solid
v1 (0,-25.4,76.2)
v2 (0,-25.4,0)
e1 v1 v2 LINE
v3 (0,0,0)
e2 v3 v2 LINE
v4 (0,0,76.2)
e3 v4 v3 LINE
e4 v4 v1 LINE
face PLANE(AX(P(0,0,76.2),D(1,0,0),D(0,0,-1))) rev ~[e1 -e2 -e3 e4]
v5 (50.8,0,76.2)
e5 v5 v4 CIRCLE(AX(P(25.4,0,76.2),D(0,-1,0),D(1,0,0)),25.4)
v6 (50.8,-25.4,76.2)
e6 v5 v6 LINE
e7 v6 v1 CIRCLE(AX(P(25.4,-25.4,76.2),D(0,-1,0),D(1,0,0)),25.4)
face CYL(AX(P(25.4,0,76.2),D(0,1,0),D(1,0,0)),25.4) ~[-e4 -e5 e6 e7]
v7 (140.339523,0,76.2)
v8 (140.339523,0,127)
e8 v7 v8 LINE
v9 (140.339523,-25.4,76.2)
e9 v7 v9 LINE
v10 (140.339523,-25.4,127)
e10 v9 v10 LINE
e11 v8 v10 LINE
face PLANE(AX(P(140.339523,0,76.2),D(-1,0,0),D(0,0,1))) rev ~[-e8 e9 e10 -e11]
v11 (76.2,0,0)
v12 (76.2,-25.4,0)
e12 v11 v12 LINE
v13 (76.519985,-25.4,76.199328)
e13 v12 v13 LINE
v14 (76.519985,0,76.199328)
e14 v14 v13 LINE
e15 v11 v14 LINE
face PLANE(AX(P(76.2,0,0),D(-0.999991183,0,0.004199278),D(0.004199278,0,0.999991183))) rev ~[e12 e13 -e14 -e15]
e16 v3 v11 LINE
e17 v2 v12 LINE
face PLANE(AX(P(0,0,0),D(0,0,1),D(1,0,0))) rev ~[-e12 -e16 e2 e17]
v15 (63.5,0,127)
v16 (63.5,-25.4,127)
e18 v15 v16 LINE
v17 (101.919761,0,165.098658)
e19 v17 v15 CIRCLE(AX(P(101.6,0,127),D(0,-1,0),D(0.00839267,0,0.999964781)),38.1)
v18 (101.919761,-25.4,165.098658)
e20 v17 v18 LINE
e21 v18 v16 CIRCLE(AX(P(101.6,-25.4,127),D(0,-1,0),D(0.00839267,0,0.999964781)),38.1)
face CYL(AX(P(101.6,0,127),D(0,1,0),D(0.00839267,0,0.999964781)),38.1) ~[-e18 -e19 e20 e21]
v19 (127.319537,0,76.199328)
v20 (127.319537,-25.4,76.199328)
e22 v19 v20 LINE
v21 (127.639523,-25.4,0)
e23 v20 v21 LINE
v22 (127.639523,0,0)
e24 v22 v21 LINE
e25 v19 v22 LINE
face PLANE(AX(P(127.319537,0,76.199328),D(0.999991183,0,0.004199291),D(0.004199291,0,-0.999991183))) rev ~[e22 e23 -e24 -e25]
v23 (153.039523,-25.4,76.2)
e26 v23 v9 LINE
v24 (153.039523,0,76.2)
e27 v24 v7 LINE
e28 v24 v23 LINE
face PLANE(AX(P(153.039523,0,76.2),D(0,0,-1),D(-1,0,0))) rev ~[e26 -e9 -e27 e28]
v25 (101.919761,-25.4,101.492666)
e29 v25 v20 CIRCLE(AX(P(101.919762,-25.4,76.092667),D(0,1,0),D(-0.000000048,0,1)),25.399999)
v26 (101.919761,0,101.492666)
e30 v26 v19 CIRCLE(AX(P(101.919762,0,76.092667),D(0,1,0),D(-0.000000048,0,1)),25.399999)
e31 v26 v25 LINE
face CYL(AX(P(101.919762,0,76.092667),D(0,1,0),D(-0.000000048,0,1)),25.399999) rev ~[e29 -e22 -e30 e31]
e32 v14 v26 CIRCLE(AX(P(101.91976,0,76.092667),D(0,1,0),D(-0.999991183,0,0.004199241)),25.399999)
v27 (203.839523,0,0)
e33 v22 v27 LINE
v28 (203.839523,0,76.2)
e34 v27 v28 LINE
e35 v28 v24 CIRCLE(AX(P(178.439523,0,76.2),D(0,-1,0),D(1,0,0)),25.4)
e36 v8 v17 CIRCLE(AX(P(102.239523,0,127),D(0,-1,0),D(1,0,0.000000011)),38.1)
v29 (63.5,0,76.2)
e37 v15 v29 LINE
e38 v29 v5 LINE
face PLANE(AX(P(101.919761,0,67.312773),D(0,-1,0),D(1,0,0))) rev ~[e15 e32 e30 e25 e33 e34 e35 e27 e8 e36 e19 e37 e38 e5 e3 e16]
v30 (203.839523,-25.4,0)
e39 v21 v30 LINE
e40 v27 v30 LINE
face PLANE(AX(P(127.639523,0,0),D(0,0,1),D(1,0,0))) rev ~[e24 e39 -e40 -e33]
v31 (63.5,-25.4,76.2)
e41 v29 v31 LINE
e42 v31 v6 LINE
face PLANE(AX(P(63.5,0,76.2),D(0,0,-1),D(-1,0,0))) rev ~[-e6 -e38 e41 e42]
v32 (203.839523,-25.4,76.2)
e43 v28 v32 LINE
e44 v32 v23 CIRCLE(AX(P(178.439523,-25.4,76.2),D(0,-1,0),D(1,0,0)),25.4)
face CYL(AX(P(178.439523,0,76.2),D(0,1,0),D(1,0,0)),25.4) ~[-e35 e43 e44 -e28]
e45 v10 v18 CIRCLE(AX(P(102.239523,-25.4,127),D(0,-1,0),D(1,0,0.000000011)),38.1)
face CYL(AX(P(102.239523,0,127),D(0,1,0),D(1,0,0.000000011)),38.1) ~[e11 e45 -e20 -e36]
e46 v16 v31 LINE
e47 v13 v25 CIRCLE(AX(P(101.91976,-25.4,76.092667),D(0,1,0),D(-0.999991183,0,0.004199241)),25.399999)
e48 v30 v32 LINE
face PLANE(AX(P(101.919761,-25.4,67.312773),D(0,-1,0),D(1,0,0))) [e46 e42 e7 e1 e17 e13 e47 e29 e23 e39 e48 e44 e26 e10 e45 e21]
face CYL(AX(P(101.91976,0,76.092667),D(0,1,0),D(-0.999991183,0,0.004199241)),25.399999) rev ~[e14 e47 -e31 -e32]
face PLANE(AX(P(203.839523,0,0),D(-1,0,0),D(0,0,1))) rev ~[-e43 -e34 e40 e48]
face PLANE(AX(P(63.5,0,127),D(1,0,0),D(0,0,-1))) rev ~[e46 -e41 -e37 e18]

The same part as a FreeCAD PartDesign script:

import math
import FreeCAD as App
import Part
import Sketcher

V = App.Vector
Q = App.Units.Quantity

doc = App.newDocument("Part")
params = doc.addObject("Spreadsheet::Sheet", "Params")
for row, (alias, value) in enumerate([
    ("sketch1_radius", "0.9999999 in"),
    ("sketch1_radius2", "1.5 in"),
    ("sketch1_width", "3 in"),
    ("sketch1_height", "2 in"),
    ("sketch1_length", "3 in"),
    ("pad1_length", "1 in"),
], start=1):
    params.set(f"A{row}", alias)
    params.set(f"B{row}", "=" + value)
    params.setAlias(f"B{row}", alias)

body = doc.addObject("PartDesign::Body", "Body")

# Sketch on XZ plane
sketch1 = doc.addObject("Sketcher::SketchObject", "Sketch")
body.addObject(sketch1)
sketch1.AttachmentSupport = (doc.XZ_Plane, [""])
sketch1.MapMode = "FlatFace"
sketch1.addGeometry([
    Part.LineSegment(V(0, 76.2, 0), V(0, 0, 0)),  # 0
    Part.LineSegment(V(0, 0, 0), V(76.2, 0, 0)),  # 1
    Part.LineSegment(V(76.2, 0, 0), V(76.519985, 76.199328, 0)),  # 2
    Part.ArcOfCircle(Part.Circle(V(101.91976, 76.092667, 0), V(0, 0, 1), 25.399999), math.radians(89.999997), math.radians(179.7594)),  # 3
    Part.ArcOfCircle(Part.Circle(V(101.919762, 76.092667, 0), V(0, 0, 1), 25.399999), math.radians(0.2406), math.radians(90.000003)),  # 4
    Part.LineSegment(V(127.319537, 76.199328, 0), V(127.639523, 0, 0)),  # 5
    Part.LineSegment(V(127.639523, 0, 0), V(203.839523, 0, 0)),  # 6
    Part.LineSegment(V(203.839523, 0, 0), V(203.839523, 76.2, 0)),  # 7
    Part.ArcOfCircle(Part.Circle(V(178.439523, 76.2, 0), V(0, 0, 1), 25.4), math.radians(0), math.radians(180)),  # 8
    Part.LineSegment(V(153.039523, 76.2, 0), V(140.339523, 76.2, 0)),  # 9
    Part.LineSegment(V(140.339523, 76.2, 0), V(140.339523, 127, 0)),  # 10
    Part.ArcOfCircle(Part.Circle(V(102.239523, 127, 0), V(0, 0, 1), 38.1), math.radians(0.000001), math.radians(90.480872)),  # 11
    Part.ArcOfCircle(Part.Circle(V(101.6, 127, 0), V(0, 0, 1), 38.1), math.radians(89.51913), math.radians(179.999999)),  # 12
    Part.LineSegment(V(63.5, 127, 0), V(63.5, 76.2, 0)),  # 13
    Part.LineSegment(V(63.5, 76.2, 0), V(50.8, 76.2, 0)),  # 14
    Part.ArcOfCircle(Part.Circle(V(25.4, 76.2, 0), V(0, 0, 1), 25.4), math.radians(0), math.radians(180)),  # 15
], False)
sketch1.addConstraint([
    Sketcher.Constraint("Coincident", 0, 2, 1, 1),
    Sketcher.Constraint("Coincident", 1, 2, 2, 1),
    Sketcher.Constraint("Tangent", 2, 2, 3, 2),
    Sketcher.Constraint("Tangent", 3, 1, 4, 2),
    Sketcher.Constraint("Tangent", 4, 1, 5, 1),
    Sketcher.Constraint("Coincident", 5, 2, 6, 1),
    Sketcher.Constraint("Coincident", 6, 2, 7, 1),
    Sketcher.Constraint("Tangent", 7, 2, 8, 1),
    Sketcher.Constraint("Coincident", 8, 2, 9, 1),
    Sketcher.Constraint("Coincident", 9, 2, 10, 1),
    Sketcher.Constraint("Tangent", 10, 2, 11, 1),
    Sketcher.Constraint("Coincident", 11, 2, 12, 1),
    Sketcher.Constraint("Tangent", 12, 2, 13, 1),
    Sketcher.Constraint("Coincident", 13, 2, 14, 1),
    Sketcher.Constraint("Coincident", 14, 2, 15, 1),
    Sketcher.Constraint("Tangent", 15, 2, 0, 1),
    Sketcher.Constraint("Vertical", 0),
    Sketcher.Constraint("Horizontal", 1),
    Sketcher.Constraint("Horizontal", 6),
    Sketcher.Constraint("Vertical", 7),
    Sketcher.Constraint("Horizontal", 9),
    Sketcher.Constraint("Vertical", 10),
    Sketcher.Constraint("Vertical", 13),
    Sketcher.Constraint("Horizontal", 14),
    Sketcher.Constraint("Coincident", 0, 2, -1, 1),
    Sketcher.Constraint("Equal", 3, 4),
    Sketcher.Constraint("Equal", 4, 8),
    Sketcher.Constraint("Equal", 11, 12),
    Sketcher.Constraint("Equal", 8, 15),
    Sketcher.Constraint("PointOnObject", 5, 2, -1),
    Sketcher.Constraint("Horizontal", 11, 3, 12, 3),
    Sketcher.Constraint("Horizontal", 8, 3, 15, 3),
    Sketcher.Constraint("Horizontal", 2, 2, 4, 1),
    Sketcher.Constraint("Horizontal", 7, 2, 8, 2),
    Sketcher.Constraint("Horizontal", 9, 2, 13, 2),
    Sketcher.Constraint("Vertical", 4, 3, 3, 1),
    Sketcher.Constraint("Vertical", 3, 1, 11, 2),
    Sketcher.Constraint("Equal", 1, 6),
    Sketcher.Constraint("Equal", 6, 0),
    Sketcher.Constraint("Radius", 3, Q("0.9999999 in")),
    Sketcher.Constraint("Radius", 11, Q("1.5 in")),
    Sketcher.Constraint("DistanceX", 1, 1, 1, 2, Q("3 in")),
    Sketcher.Constraint("DistanceY", 10, 1, 10, 2, Q("2 in")),
    Sketcher.Constraint("Distance", 2, Q("3 in")),
    Sketcher.Constraint("DistanceX", 9, 2, 9, 1, Q("0.5 in")),
    Sketcher.Constraint("DistanceX", -1, 1, 3, 3, Q("101.91976 mm")),
])
sketch1.setExpression("Constraints[39]", "Params.sketch1_radius")
sketch1.setExpression("Constraints[40]", "Params.sketch1_radius2")
sketch1.setExpression("Constraints[41]", "Params.sketch1_width")
sketch1.setExpression("Constraints[42]", "Params.sketch1_height")
sketch1.setExpression("Constraints[43]", "Params.sketch1_length")
pad1 = doc.addObject("PartDesign::Pad", "Pad")
body.addObject(pad1)
pad1.Profile = sketch1
pad1.setExpression("Length", "Params.pad1_length")

doc.recompute()
